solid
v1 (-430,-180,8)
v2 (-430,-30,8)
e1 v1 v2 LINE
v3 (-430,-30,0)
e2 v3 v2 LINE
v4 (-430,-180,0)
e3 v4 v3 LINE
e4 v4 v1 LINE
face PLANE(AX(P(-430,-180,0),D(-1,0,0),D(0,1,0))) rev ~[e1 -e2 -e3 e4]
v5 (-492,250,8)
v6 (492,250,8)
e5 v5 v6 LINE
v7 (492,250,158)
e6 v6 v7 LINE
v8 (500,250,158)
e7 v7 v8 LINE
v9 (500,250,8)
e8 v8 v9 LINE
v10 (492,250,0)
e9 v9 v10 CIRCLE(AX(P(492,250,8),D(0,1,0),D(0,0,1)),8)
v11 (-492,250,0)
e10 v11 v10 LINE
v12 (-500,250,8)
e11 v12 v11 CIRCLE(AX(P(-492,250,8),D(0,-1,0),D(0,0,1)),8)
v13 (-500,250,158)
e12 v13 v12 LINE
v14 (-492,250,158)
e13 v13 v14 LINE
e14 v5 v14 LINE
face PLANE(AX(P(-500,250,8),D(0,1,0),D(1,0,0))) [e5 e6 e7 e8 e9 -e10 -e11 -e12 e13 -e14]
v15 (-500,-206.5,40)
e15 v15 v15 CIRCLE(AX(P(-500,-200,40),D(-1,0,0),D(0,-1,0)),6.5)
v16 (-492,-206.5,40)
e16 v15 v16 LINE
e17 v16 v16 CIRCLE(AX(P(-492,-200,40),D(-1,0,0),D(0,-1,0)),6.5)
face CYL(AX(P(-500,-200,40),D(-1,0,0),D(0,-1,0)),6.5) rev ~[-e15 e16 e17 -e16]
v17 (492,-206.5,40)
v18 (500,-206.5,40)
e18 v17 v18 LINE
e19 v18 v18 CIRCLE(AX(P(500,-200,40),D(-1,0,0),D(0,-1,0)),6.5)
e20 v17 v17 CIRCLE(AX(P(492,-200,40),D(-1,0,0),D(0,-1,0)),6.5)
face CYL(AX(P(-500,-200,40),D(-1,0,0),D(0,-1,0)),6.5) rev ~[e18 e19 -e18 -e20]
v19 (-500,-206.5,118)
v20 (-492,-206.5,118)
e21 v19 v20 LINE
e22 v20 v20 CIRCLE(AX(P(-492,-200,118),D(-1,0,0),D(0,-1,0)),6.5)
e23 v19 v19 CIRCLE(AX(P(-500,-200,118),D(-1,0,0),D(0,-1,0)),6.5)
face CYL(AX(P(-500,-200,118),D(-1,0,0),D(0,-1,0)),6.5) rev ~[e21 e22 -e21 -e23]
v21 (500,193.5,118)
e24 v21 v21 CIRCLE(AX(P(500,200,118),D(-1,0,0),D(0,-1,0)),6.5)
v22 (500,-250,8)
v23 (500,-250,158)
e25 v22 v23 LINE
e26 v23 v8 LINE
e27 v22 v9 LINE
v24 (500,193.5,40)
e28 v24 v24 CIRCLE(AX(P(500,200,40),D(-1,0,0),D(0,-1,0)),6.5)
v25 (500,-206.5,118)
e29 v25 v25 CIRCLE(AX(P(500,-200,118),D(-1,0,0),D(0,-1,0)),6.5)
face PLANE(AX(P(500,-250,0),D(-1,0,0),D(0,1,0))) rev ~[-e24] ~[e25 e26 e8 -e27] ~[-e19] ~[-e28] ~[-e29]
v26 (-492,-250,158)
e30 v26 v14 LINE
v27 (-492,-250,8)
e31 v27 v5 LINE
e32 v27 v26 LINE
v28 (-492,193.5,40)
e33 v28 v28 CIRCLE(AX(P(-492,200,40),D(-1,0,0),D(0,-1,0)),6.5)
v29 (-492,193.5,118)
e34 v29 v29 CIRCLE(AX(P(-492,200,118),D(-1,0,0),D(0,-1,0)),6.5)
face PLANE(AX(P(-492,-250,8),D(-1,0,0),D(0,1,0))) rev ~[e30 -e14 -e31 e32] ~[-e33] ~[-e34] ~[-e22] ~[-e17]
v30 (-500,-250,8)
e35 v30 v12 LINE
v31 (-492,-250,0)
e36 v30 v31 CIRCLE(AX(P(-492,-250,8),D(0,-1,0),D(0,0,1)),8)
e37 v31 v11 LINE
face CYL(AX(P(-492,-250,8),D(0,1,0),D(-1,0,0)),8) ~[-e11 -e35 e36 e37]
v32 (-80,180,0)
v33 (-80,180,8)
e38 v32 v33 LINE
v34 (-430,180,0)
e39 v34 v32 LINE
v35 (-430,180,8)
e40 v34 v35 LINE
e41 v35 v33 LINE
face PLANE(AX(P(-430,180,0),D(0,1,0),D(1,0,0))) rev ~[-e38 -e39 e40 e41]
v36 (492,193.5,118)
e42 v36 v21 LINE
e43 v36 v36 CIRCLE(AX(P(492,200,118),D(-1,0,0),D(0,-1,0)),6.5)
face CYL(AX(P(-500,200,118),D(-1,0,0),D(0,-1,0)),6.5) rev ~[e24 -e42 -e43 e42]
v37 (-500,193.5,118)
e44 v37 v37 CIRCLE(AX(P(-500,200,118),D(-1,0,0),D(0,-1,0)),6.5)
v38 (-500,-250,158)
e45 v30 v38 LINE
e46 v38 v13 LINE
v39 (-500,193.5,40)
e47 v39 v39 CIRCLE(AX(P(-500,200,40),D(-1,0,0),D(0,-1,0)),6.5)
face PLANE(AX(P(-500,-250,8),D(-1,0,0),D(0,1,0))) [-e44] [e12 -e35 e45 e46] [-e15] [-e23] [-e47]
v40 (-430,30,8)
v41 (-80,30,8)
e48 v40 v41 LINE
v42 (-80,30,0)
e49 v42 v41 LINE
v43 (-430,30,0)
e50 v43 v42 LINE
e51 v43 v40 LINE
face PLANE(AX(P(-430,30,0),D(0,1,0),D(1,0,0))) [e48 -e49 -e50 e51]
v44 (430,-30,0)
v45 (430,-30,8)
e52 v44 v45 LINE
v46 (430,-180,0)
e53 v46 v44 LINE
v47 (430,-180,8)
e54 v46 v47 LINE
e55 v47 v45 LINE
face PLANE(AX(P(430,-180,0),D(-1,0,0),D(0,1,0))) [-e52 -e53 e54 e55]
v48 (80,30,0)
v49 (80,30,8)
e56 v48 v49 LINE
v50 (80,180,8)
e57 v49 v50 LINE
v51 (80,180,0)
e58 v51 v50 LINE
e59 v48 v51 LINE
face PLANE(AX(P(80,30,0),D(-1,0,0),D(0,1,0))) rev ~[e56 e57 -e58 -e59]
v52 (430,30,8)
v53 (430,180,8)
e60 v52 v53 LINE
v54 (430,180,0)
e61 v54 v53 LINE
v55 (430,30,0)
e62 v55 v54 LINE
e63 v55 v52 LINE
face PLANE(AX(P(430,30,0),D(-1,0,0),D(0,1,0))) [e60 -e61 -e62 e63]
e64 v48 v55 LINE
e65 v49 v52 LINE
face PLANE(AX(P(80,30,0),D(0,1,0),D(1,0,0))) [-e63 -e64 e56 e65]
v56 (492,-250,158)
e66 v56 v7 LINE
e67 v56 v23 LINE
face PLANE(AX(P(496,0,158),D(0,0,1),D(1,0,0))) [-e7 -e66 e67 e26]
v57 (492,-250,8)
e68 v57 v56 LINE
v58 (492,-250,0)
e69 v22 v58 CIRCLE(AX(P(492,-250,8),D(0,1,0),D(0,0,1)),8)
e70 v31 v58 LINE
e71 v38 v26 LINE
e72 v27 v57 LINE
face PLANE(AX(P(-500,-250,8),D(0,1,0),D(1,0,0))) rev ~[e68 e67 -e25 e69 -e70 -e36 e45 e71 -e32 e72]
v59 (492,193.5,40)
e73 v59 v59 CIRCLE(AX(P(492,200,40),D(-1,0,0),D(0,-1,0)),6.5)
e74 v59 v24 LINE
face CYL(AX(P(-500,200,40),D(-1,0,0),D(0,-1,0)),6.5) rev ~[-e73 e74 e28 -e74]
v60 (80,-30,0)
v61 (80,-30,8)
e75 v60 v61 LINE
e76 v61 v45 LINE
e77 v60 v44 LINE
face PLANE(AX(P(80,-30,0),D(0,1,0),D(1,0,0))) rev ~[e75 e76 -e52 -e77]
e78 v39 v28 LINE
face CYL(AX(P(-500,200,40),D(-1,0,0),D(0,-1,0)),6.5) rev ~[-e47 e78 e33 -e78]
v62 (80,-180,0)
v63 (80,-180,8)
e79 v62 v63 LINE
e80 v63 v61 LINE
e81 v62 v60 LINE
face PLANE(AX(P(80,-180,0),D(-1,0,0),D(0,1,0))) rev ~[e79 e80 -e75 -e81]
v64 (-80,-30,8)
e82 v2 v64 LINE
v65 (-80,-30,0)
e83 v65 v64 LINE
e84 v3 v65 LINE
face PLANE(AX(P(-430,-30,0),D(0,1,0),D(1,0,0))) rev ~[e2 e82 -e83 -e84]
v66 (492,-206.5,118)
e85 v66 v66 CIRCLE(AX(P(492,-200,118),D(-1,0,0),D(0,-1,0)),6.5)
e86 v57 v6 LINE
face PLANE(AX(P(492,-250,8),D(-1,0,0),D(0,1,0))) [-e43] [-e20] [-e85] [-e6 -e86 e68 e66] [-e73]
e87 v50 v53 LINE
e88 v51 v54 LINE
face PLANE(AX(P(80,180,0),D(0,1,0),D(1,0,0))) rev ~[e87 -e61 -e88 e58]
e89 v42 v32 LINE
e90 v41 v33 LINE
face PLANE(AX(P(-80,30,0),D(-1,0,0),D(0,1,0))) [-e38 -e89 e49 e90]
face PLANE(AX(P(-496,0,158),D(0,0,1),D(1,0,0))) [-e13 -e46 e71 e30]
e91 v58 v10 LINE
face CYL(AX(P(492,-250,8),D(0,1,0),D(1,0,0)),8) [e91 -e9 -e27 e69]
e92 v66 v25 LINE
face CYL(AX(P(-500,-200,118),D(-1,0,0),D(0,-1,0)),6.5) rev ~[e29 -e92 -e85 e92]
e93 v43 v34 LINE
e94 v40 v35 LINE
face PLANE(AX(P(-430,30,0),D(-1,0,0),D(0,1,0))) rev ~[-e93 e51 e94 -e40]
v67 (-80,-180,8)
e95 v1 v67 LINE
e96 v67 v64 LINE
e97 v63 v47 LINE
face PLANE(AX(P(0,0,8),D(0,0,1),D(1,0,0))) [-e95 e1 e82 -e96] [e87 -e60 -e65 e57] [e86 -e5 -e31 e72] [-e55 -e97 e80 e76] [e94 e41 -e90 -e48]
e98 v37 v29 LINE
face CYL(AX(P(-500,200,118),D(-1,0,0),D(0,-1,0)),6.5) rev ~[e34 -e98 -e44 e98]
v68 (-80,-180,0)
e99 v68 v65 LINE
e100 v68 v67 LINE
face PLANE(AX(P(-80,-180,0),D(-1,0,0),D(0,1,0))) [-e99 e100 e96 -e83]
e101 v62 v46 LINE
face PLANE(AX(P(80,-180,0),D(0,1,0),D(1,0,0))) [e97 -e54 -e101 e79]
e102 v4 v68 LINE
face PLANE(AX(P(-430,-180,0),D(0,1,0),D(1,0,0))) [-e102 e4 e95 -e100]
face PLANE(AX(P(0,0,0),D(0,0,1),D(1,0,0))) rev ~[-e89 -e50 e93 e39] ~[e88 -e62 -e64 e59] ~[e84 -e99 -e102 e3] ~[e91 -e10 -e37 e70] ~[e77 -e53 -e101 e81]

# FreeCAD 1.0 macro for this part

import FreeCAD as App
import Part
import Sketcher

V = App.Vector
Q = App.Units.Quantity


def edges_at(feature, points):
    """Names of the edges that pass closest to the given points."""
    edges = feature.Shape.Edges
    near = lambda p: min(range(len(edges)), key=lambda i: edges[i].distToShape(Part.Vertex(*p))[0])
    return sorted({f"Edge{near(p) + 1}" for p in points})

doc = App.newDocument("Part")
body = doc.addObject("PartDesign::Body", "Body")

# Sketch on XY plane
sketch1 = body.newObject("Sketcher::SketchObject", "Sketch")
sketch1.AttachmentSupport = (doc.getObject("XY_Plane"), [""])
sketch1.MapMode = "FlatFace"
sketch1.addGeometry([
    Part.LineSegment(V(-500, 250, 0), V(-500, -250, 0)),  # 0
    Part.LineSegment(V(-500, -250, 0), V(500, -250, 0)),  # 1
    Part.LineSegment(V(500, -250, 0), V(500, 250, 0)),  # 2
    Part.LineSegment(V(500, 250, 0), V(-500, 250, 0)),  # 3
    Part.LineSegment(V(-80, -180, 0), V(-430, -180, 0)),  # 4
    Part.LineSegment(V(-430, -180, 0), V(-430, -30, 0)),  # 5
    Part.LineSegment(V(-430, -30, 0), V(-80, -30, 0)),  # 6
    Part.LineSegment(V(-80, -30, 0), V(-80, -180, 0)),  # 7
    Part.LineSegment(V(430, -180, 0), V(80, -180, 0)),  # 8
    Part.LineSegment(V(80, -180, 0), V(80, -30, 0)),  # 9
    Part.LineSegment(V(80, -30, 0), V(430, -30, 0)),  # 10
    Part.LineSegment(V(430, -30, 0), V(430, -180, 0)),  # 11
    Part.LineSegment(V(-80, 30, 0), V(-430, 30, 0)),  # 12
    Part.LineSegment(V(-430, 30, 0), V(-430, 180, 0)),  # 13
    Part.LineSegment(V(-430, 180, 0), V(-80, 180, 0)),  # 14
    Part.LineSegment(V(-80, 180, 0), V(-80, 30, 0)),  # 15
    Part.LineSegment(V(430, 30, 0), V(80, 30, 0)),  # 16
    Part.LineSegment(V(80, 30, 0), V(80, 180, 0)),  # 17
    Part.LineSegment(V(80, 180, 0), V(430, 180, 0)),  # 18
    Part.LineSegment(V(430, 180, 0), V(430, 30, 0)),  # 19
], False)
sketch1.addConstraint([
    Sketcher.Constraint("Coincident", 0, 2, 1, 1),
    Sketcher.Constraint("Coincident", 1, 2, 2, 1),
    Sketcher.Constraint("Coincident", 2, 2, 3, 1),
    Sketcher.Constraint("Coincident", 3, 2, 0, 1),
    Sketcher.Constraint("Coincident", 4, 2, 5, 1),
    Sketcher.Constraint("Coincident", 5, 2, 6, 1),
    Sketcher.Constraint("Coincident", 6, 2, 7, 1),
    Sketcher.Constraint("Coincident", 7, 2, 4, 1),
    Sketcher.Constraint("Coincident", 8, 2, 9, 1),
    Sketcher.Constraint("Coincident", 9, 2, 10, 1),
    Sketcher.Constraint("Coincident", 10, 2, 11, 1),
    Sketcher.Constraint("Coincident", 11, 2, 8, 1),
    Sketcher.Constraint("Coincident", 12, 2, 13, 1),
    Sketcher.Constraint("Coincident", 13, 2, 14, 1),
    Sketcher.Constraint("Coincident", 14, 2, 15, 1),
    Sketcher.Constraint("Coincident", 15, 2, 12, 1),
    Sketcher.Constraint("Coincident", 16, 2, 17, 1),
    Sketcher.Constraint("Coincident", 17, 2, 18, 1),
    Sketcher.Constraint("Coincident", 18, 2, 19, 1),
    Sketcher.Constraint("Coincident", 19, 2, 16, 1),
    Sketcher.Constraint("Vertical", 0),
    Sketcher.Constraint("Horizontal", 1),
    Sketcher.Constraint("Vertical", 2),
    Sketcher.Constraint("Horizontal", 3),
    Sketcher.Constraint("Horizontal", 4),
    Sketcher.Constraint("Vertical", 5),
    Sketcher.Constraint("Horizontal", 6),
    Sketcher.Constraint("Vertical", 7),
    Sketcher.Constraint("Horizontal", 8),
    Sketcher.Constraint("Vertical", 9),
    Sketcher.Constraint("Horizontal", 10),
    Sketcher.Constraint("Vertical", 11),
    Sketcher.Constraint("Horizontal", 12),
    Sketcher.Constraint("Vertical", 13),
    Sketcher.Constraint("Horizontal", 14),
    Sketcher.Constraint("Vertical", 15),
    Sketcher.Constraint("Horizontal", 16),
    Sketcher.Constraint("Vertical", 17),
    Sketcher.Constraint("Horizontal", 18),
    Sketcher.Constraint("Vertical", 19),
    Sketcher.Constraint("Symmetric", 0, 2, 2, 2, -1, 1),
    Sketcher.Constraint("Symmetric", 10, 2, 12, 2, -1, 1),
    Sketcher.Constraint("Symmetric", 8, 2, 14, 2, -1, 1),
    Sketcher.Constraint("Symmetric", 6, 2, 16, 2, -1, 1),
    Sketcher.Constraint("Symmetric", 4, 2, 18, 2, -1, 1),
    Sketcher.Constraint("Symmetric", 7, 2, 8, 2, -2),
    Sketcher.Constraint("Symmetric", 5, 2, 10, 2, -2),
    Sketcher.Constraint("DistanceX", 1, 1, 1, 2, Q("1000 mm")),
    Sketcher.Constraint("DistanceX", 4, 2, 4, 1, Q("350 mm")),
    Sketcher.Constraint("DistanceY", 0, 2, 0, 1, Q("500 mm")),
    Sketcher.Constraint("DistanceY", 5, 1, 5, 2, Q("150 mm")),
    Sketcher.Constraint("DistanceX", 4, 2, -1, 1, Q("430 mm")),
    Sketcher.Constraint("DistanceY", 4, 2, -1, 1, Q("180 mm")),
])
pad1 = body.newObject("PartDesign::Pad", "Pad")
pad1.Profile = sketch1
pad1.Length = 8

# Sketch on XY plane
sketch2 = body.newObject("Sketcher::SketchObject", "Sketch001")
sketch2.AttachmentSupport = (doc.getObject("XY_Plane"), [""])
sketch2.MapMode = "FlatFace"
sketch2.AttachmentOffset = App.Placement(V(0, 0, 8), App.Rotation())
sketch2.addGeometry([
    Part.LineSegment(V(-500, 250, 0), V(-500, -250, 0)),  # 0
    Part.LineSegment(V(-500, -250, 0), V(-492, -250, 0)),  # 1
    Part.LineSegment(V(-492, -250, 0), V(-492, 250, 0)),  # 2
    Part.LineSegment(V(-492, 250, 0), V(-500, 250, 0)),  # 3
    Part.LineSegment(V(492, 250, 0), V(492, -250, 0)),  # 4
    Part.LineSegment(V(492, -250, 0), V(500, -250, 0)),  # 5
    Part.LineSegment(V(500, -250, 0), V(500, 250, 0)),  # 6
    Part.LineSegment(V(500, 250, 0), V(492, 250, 0)),  # 7
], False)
sketch2.addConstraint([
    Sketcher.Constraint("Coincident", 0, 2, 1, 1),
    Sketcher.Constraint("Coincident", 1, 2, 2, 1),
    Sketcher.Constraint("Coincident", 2, 2, 3, 1),
    Sketcher.Constraint("Coincident", 3, 2, 0, 1),
    Sketcher.Constraint("Coincident", 4, 2, 5, 1),
    Sketcher.Constraint("Coincident", 5, 2, 6, 1),
    Sketcher.Constraint("Coincident", 6, 2, 7, 1),
    Sketcher.Constraint("Coincident", 7, 2, 4, 1),
    Sketcher.Constraint("Vertical", 0),
    Sketcher.Constraint("Horizontal", 1),
    Sketcher.Constraint("Vertical", 2),
    Sketcher.Constraint("Horizontal", 3),
    Sketcher.Constraint("Vertical", 4),
    Sketcher.Constraint("Horizontal", 5),
    Sketcher.Constraint("Vertical", 6),
    Sketcher.Constraint("Horizontal", 7),
    Sketcher.Constraint("Symmetric", 2, 2, 4, 2, -1, 1),
    Sketcher.Constraint("Symmetric", 0, 2, 6, 2, -1, 1),
    Sketcher.Constraint("Horizontal", 1, 2, 4, 2),
    Sketcher.Constraint("DistanceX", 1, 1, 1, 2, Q("8 mm")),
    Sketcher.Constraint("DistanceY", 0, 2, 0, 1, Q("500 mm")),
    Sketcher.Constraint("DistanceX", 0, 2, -1, 1, Q("500 mm")),
])
pad2 = body.newObject("PartDesign::Pad", "Pad001")
pad2.Profile = sketch2
pad2.Length = 150
doc.recompute()

fillet = body.newObject("PartDesign::Fillet", "Fillet")
fillet.Base = (pad2, edges_at(pad2, [(-500, 0, 0), (500, 0, 0)]))
fillet.Radius = 8

# Sketch on YZ plane
sketch3 = body.newObject("Sketcher::SketchObject", "Sketch002")
sketch3.AttachmentSupport = (doc.getObject("YZ_Plane"), [""])
sketch3.MapMode = "FlatFace"
sketch3.AttachmentOffset = App.Placement(V(0, 0, -500), App.Rotation())
sketch3.addGeometry([
    Part.Circle(V(200, 40, 0), V(0, 0, 1), 6),
    Part.Circle(V(200, 118, 0), V(0, 0, 1), 6),
    Part.Circle(V(-200, 118, 0), V(0, 0, 1), 6),
    Part.Circle(V(-200, 40, 0), V(0, 0, 1), 6),
], False)
sketch3.addConstraint([
    Sketcher.Constraint("Equal", 0, 1),
    Sketcher.Constraint("Equal", 1, 2),
    Sketcher.Constraint("Equal", 2, 3),
    Sketcher.Constraint("Symmetric", 1, 3, 2, 3, -2),
    Sketcher.Constraint("Symmetric", 0, 3, 3, 3, -2),
    Sketcher.Constraint("Vertical", 0, 3, 1, 3),
    Sketcher.Constraint("Diameter", 0, Q("13 mm")),
    Sketcher.Constraint("DistanceX", -1, 1, 0, 3, Q("200 mm")),
    Sketcher.Constraint("DistanceY", -1, 1, 0, 3, Q("40 mm")),
    Sketcher.Constraint("DistanceY", -1, 1, 1, 3, Q("118 mm")),
])
pocket1 = body.newObject("PartDesign::Pocket", "Pocket")
pocket1.Profile = sketch3
pocket1.Length = 1200
pocket1.Reversed = True

doc.recompute()
